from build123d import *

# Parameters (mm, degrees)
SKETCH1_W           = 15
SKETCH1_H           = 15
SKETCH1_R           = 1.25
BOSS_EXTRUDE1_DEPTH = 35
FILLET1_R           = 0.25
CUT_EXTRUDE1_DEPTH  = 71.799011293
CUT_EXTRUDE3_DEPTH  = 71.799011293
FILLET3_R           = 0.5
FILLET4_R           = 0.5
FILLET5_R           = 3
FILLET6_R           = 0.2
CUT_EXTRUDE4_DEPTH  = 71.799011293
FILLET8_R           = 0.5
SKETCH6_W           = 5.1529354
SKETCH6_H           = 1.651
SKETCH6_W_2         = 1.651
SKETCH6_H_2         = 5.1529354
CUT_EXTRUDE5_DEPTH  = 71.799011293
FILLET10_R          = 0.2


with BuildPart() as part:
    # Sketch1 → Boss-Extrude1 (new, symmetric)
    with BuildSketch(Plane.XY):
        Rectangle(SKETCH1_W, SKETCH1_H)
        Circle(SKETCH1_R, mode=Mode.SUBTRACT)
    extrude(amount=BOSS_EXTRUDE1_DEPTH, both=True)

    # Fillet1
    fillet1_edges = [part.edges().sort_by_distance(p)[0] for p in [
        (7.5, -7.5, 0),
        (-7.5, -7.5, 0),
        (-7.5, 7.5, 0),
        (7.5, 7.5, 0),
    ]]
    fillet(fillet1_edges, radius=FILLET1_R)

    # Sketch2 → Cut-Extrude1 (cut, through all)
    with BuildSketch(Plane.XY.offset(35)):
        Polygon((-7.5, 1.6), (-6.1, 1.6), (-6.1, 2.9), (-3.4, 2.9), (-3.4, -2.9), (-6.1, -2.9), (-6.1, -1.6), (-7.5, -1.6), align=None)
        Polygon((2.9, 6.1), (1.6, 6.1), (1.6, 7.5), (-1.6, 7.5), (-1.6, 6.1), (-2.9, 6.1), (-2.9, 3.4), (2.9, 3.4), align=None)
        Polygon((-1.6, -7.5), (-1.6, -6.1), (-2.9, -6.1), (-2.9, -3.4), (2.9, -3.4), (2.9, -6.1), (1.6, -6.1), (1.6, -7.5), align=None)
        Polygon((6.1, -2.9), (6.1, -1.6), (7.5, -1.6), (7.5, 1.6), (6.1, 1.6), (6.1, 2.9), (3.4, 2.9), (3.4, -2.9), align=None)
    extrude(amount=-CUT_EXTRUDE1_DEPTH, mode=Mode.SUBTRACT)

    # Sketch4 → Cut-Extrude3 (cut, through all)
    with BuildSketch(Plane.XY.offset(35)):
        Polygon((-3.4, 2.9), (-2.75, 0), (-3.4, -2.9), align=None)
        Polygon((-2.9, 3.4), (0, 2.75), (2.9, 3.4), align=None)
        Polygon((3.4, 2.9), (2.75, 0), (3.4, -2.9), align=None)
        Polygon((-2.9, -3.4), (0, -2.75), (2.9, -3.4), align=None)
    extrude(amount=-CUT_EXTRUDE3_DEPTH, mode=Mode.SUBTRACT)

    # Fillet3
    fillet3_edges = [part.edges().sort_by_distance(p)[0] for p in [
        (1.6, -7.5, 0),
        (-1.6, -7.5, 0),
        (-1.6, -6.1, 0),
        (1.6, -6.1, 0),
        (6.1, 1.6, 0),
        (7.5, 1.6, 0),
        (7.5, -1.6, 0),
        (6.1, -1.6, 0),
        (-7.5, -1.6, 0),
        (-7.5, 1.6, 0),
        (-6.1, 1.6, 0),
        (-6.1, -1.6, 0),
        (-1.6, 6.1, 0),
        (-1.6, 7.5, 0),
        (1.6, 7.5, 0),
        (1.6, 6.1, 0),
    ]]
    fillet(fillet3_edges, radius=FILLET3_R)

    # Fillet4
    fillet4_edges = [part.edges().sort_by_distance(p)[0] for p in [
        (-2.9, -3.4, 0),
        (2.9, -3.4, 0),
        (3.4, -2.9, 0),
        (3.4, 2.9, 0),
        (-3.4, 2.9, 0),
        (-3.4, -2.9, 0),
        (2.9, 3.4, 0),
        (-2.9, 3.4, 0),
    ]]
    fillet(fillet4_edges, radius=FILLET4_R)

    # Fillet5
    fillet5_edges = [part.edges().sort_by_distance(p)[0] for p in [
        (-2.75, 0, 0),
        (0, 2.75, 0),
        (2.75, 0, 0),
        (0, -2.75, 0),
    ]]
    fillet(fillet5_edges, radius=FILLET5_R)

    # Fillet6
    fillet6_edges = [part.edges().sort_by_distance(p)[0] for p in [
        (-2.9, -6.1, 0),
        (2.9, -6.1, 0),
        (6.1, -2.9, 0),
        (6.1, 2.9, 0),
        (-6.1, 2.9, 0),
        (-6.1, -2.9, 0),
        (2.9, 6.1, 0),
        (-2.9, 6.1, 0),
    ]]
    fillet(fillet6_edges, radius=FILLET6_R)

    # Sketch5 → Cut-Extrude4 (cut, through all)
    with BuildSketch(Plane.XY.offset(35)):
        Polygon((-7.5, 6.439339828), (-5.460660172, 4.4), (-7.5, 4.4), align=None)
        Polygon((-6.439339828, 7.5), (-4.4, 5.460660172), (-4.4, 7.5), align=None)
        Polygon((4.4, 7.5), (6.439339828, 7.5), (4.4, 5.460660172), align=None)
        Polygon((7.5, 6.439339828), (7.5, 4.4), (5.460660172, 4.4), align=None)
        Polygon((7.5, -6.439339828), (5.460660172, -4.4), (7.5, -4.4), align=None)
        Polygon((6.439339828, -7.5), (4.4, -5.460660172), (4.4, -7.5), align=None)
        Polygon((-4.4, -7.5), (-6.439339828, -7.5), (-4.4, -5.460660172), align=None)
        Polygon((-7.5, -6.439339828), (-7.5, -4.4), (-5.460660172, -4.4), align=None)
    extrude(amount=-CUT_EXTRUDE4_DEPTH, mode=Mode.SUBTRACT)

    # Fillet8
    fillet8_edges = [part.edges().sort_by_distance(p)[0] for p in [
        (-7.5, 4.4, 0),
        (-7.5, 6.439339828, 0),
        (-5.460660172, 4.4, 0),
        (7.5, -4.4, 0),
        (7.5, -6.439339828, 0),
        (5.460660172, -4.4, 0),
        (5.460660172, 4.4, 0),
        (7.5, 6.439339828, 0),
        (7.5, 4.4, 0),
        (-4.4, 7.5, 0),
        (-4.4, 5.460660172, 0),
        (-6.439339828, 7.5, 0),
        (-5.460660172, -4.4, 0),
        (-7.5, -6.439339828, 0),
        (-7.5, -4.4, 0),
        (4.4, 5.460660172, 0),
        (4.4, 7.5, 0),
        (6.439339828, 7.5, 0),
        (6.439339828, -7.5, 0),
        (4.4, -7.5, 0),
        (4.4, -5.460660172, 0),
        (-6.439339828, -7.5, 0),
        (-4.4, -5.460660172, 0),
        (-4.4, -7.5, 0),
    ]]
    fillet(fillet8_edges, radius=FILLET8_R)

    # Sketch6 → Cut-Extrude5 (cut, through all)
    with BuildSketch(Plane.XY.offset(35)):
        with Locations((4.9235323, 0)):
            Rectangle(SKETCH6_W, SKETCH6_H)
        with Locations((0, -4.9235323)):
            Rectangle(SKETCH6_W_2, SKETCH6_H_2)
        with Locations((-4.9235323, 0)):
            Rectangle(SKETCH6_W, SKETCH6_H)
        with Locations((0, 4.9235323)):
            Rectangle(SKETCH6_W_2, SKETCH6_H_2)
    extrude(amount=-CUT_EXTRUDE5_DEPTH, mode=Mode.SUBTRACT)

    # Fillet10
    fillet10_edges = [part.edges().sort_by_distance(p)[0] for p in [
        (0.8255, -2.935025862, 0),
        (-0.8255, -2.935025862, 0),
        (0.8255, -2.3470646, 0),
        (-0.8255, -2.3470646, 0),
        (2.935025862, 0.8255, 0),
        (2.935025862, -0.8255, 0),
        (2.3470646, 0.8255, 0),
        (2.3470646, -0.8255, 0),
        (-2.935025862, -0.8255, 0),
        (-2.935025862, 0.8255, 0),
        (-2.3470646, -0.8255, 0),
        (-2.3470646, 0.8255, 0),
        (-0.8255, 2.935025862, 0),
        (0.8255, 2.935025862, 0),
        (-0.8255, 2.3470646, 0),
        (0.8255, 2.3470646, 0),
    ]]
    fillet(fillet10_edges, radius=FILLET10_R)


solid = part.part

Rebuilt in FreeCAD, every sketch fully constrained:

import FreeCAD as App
import Part
import Sketcher
Q = App.Units.Quantity


def edges_at(feature, points):
    """Names of the edges that pass closest to the given points."""
    edges = feature.Shape.Edges
    near = lambda p: min(range(len(edges)), key=lambda i: edges[i].distToShape(Part.Vertex(*p))[0])
    return sorted({f"Edge{near(p) + 1}" for p in points})

doc = App.newDocument("Part")
body = doc.addObject("PartDesign::Body", "Body")

# Sketch on XY plane
sketch1 = body.newObject("Sketcher::SketchObject", "Sketch")
sketch1.AttachmentSupport = (doc.getObject("XY_Plane"), [""])
sketch1.MapMode = "FlatFace"
sketch1.addGeometry(Part.LineSegment(App.Vector(-7.5, 7.5, 0), App.Vector(-7.5, -7.5, 0)), False)
sketch1.addGeometry(Part.LineSegment(App.Vector(-7.5, -7.5, 0), App.Vector(7.5, -7.5, 0)), False)
sketch1.addGeometry(Part.LineSegment(App.Vector(7.5, -7.5, 0), App.Vector(7.5, 7.5, 0)), False)
sketch1.addGeometry(Part.LineSegment(App.Vector(7.5, 7.5, 0), App.Vector(-7.5, 7.5, 0)), False)
sketch1.addGeometry(Part.Circle(App.Vector(0, 0, 0), App.Vector(0, 0, 1), 1.2), False)
sketch1.addConstraint(Sketcher.Constraint("Coincident", 0, 2, 1, 1))
sketch1.addConstraint(Sketcher.Constraint("Coincident", 1, 2, 2, 1))
sketch1.addConstraint(Sketcher.Constraint("Coincident", 2, 2, 3, 1))
sketch1.addConstraint(Sketcher.Constraint("Coincident", 3, 2, 0, 1))
sketch1.addConstraint(Sketcher.Constraint("Vertical", 0))
sketch1.addConstraint(Sketcher.Constraint("Horizontal", 1))
sketch1.addConstraint(Sketcher.Constraint("Vertical", 2))
sketch1.addConstraint(Sketcher.Constraint("Horizontal", 3))
sketch1.addConstraint(Sketcher.Constraint("Coincident", 4, 3, -1, 1))
sketch1.addConstraint(Sketcher.Constraint("Symmetric", 0, 2, 2, 2, -1, 1))
sketch1.addConstraint(Sketcher.Constraint("Equal", 3, 0))
sketch1.addConstraint(Sketcher.Constraint("Diameter", 4, Q("2.5 mm")))
sketch1.addConstraint(Sketcher.Constraint("DistanceX", 1, 1, 1, 2, Q("15 mm")))
pad1 = body.newObject("PartDesign::Pad", "Pad")
pad1.Profile = sketch1
pad1.Length = 70
pad1.Midplane = True
doc.recompute()

fillet = body.newObject("PartDesign::Fillet", "Fillet")
fillet.Base = (pad1, edges_at(pad1, [
    (7.5, -7.5, 0),
    (-7.5, -7.5, 0),
    (-7.5, 7.5, 0),
    (7.5, 7.5, 0),
]))
fillet.Radius = 0.25

# Sketch on XY plane
sketch2 = body.newObject("Sketcher::SketchObject", "Sketch001")
sketch2.AttachmentSupport = (doc.getObject("XY_Plane"), [""])
sketch2.MapMode = "FlatFace"
sketch2.AttachmentOffset = App.Placement(App.Vector(0, 0, 35), App.Rotation())
sketch2.addGeometry(Part.LineSegment(App.Vector(-6.1, 1.6, 0), App.Vector(-7.5, 1.6, 0)), False)
sketch2.addGeometry(Part.LineSegment(App.Vector(-7.5, 1.6, 0), App.Vector(-7.5, -1.6, 0)), False)
sketch2.addGeometry(Part.LineSegment(App.Vector(-7.5, -1.6, 0), App.Vector(-6.1, -1.6, 0)), False)
sketch2.addGeometry(Part.LineSegment(App.Vector(-6.1, -1.6, 0), App.Vector(-6.1, -2.9, 0)), False)
sketch2.addGeometry(Part.LineSegment(App.Vector(-6.1, -2.9, 0), App.Vector(-3.4, -2.9, 0)), False)
sketch2.addGeometry(Part.LineSegment(App.Vector(-3.4, -2.9, 0), App.Vector(-3.4, 2.9, 0)), False)
sketch2.addGeometry(Part.LineSegment(App.Vector(-3.4, 2.9, 0), App.Vector(-6.1, 2.9, 0)), False)
sketch2.addGeometry(Part.LineSegment(App.Vector(-6.1, 2.9, 0), App.Vector(-6.1, 1.6, 0)), False)
sketch2.addGeometry(Part.LineSegment(App.Vector(2.9, 6.1, 0), App.Vector(1.6, 6.1, 0)), False)
sketch2.addGeometry(Part.LineSegment(App.Vector(1.6, 6.1, 0), App.Vector(1.6, 7.5, 0)), False)
sketch2.addGeometry(Part.LineSegment(App.Vector(1.6, 7.5, 0), App.Vector(-1.6, 7.5, 0)), False)
sketch2.addGeometry(Part.LineSegment(App.Vector(-1.6, 7.5, 0), App.Vector(-1.6, 6.1, 0)), False)
sketch2.addGeometry(Part.LineSegment(App.Vector(-1.6, 6.1, 0), App.Vector(-2.9, 6.1, 0)), False)
sketch2.addGeometry(Part.LineSegment(App.Vector(-2.9, 6.1, 0), App.Vector(-2.9, 3.4, 0)), False)
sketch2.addGeometry(Part.LineSegment(App.Vector(-2.9, 3.4, 0), App.Vector(2.9, 3.4, 0)), False)
sketch2.addGeometry(Part.LineSegment(App.Vector(2.9, 3.4, 0), App.Vector(2.9, 6.1, 0)), False)
sketch2.addGeometry(Part.LineSegment(App.Vector(-1.6, -6.1, 0), App.Vector(-1.6, -7.5, 0)), False)
sketch2.addGeometry(Part.LineSegment(App.Vector(-1.6, -7.5, 0), App.Vector(1.6, -7.5, 0)), False)
sketch2.addGeometry(Part.LineSegment(App.Vector(1.6, -7.5, 0), App.Vector(1.6, -6.1, 0)), False)
sketch2.addGeometry(Part.LineSegment(App.Vector(1.6, -6.1, 0), App.Vector(2.9, -6.1, 0)), False)
sketch2.addGeometry(Part.LineSegment(App.Vector(2.9, -6.1, 0), App.Vector(2.9, -3.4, 0)), False)
sketch2.addGeometry(Part.LineSegment(App.Vector(2.9, -3.4, 0), App.Vector(-2.9, -3.4, 0)), False)
sketch2.addGeometry(Part.LineSegment(App.Vector(-2.9, -3.4, 0), App.Vector(-2.9, -6.1, 0)), False)
sketch2.addGeometry(Part.LineSegment(App.Vector(-2.9, -6.1, 0), App.Vector(-1.6, -6.1, 0)), False)
sketch2.addGeometry(Part.LineSegment(App.Vector(6.1, -2.9, 0), App.Vector(6.1, -1.6, 0)), False)
sketch2.addGeometry(Part.LineSegment(App.Vector(6.1, -1.6, 0), App.Vector(7.5, -1.6, 0)), False)
sketch2.addGeometry(Part.LineSegment(App.Vector(7.5, -1.6, 0), App.Vector(7.5, 1.6, 0)), False)
sketch2.addGeometry(Part.LineSegment(App.Vector(7.5, 1.6, 0), App.Vector(6.1, 1.6, 0)), False)
sketch2.addGeometry(Part.LineSegment(App.Vector(6.1, 1.6, 0), App.Vector(6.1, 2.9, 0)), False)
sketch2.addGeometry(Part.LineSegment(App.Vector(6.1, 2.9, 0), App.Vector(3.4, 2.9, 0)), False)
sketch2.addGeometry(Part.LineSegment(App.Vector(3.4, 2.9, 0), App.Vector(3.4, -2.9, 0)), False)
sketch2.addGeometry(Part.LineSegment(App.Vector(3.4, -2.9, 0), App.Vector(6.1, -2.9, 0)), False)
sketch2.addConstraint(Sketcher.Constraint("Coincident", 0, 2, 1, 1))
sketch2.addConstraint(Sketcher.Constraint("Coincident", 1, 2, 2, 1))
sketch2.addConstraint(Sketcher.Constraint("Coincident", 2, 2, 3, 1))
sketch2.addConstraint(Sketcher.Constraint("Coincident", 3, 2, 4, 1))
sketch2.addConstraint(Sketcher.Constraint("Coincident", 4, 2, 5, 1))
sketch2.addConstraint(Sketcher.Constraint("Coincident", 5, 2, 6, 1))
sketch2.addConstraint(Sketcher.Constraint("Coincident", 6, 2, 7, 1))
sketch2.addConstraint(Sketcher.Constraint("Coincident", 7, 2, 0, 1))
sketch2.addConstraint(Sketcher.Constraint("Coincident", 8, 2, 9, 1))
sketch2.addConstraint(Sketcher.Constraint("Coincident", 9, 2, 10, 1))
sketch2.addConstraint(Sketcher.Constraint("Coincident", 10, 2, 11, 1))
sketch2.addConstraint(Sketcher.Constraint("Coincident", 11, 2, 12, 1))
sketch2.addConstraint(Sketcher.Constraint("Coincident", 12, 2, 13, 1))
sketch2.addConstraint(Sketcher.Constraint("Coincident", 13, 2, 14, 1))
sketch2.addConstraint(Sketcher.Constraint("Coincident", 14, 2, 15, 1))
sketch2.addConstraint(Sketcher.Constraint("Coincident", 15, 2, 8, 1))
sketch2.addConstraint(Sketcher.Constraint("Coincident", 16, 2, 17, 1))
sketch2.addConstraint(Sketcher.Constraint("Coincident", 17, 2, 18, 1))
sketch2.addConstraint(Sketcher.Constraint("Coincident", 18, 2, 19, 1))
sketch2.addConstraint(Sketcher.Constraint("Coincident", 19, 2, 20, 1))
sketch2.addConstraint(Sketcher.Constraint("Coincident", 20, 2, 21, 1))
sketch2.addConstraint(Sketcher.Constraint("Coincident", 21, 2, 22, 1))
sketch2.addConstraint(Sketcher.Constraint("Coincident", 22, 2, 23, 1))
sketch2.addConstraint(Sketcher.Constraint("Coincident", 23, 2, 16, 1))
sketch2.addConstraint(Sketcher.Constraint("Coincident", 24, 2, 25, 1))
sketch2.addConstraint(Sketcher.Constraint("Coincident", 25, 2, 26, 1))
sketch2.addConstraint(Sketcher.Constraint("Coincident", 26, 2, 27, 1))
sketch2.addConstraint(Sketcher.Constraint("Coincident", 27, 2, 28, 1))
sketch2.addConstraint(Sketcher.Constraint("Coincident", 28, 2, 29, 1))
sketch2.addConstraint(Sketcher.Constraint("Coincident", 29, 2, 30, 1))
sketch2.addConstraint(Sketcher.Constraint("Coincident", 30, 2, 31, 1))
sketch2.addConstraint(Sketcher.Constraint("Coincident", 31, 2, 24, 1))
sketch2.addConstraint(Sketcher.Constraint("Horizontal", 0))
sketch2.addConstraint(Sketcher.Constraint("Vertical", 1))
sketch2.addConstraint(Sketcher.Constraint("Horizontal", 2))
sketch2.addConstraint(Sketcher.Constraint("Vertical", 3))
sketch2.addConstraint(Sketcher.Constraint("Horizontal", 4))
sketch2.addConstraint(Sketcher.Constraint("Vertical", 5))
sketch2.addConstraint(Sketcher.Constraint("Horizontal", 6))
sketch2.addConstraint(Sketcher.Constraint("Vertical", 7))
sketch2.addConstraint(Sketcher.Constraint("Horizontal", 8))
sketch2.addConstraint(Sketcher.Constraint("Vertical", 9))
sketch2.addConstraint(Sketcher.Constraint("Horizontal", 10))
sketch2.addConstraint(Sketcher.Constraint("Vertical", 11))
sketch2.addConstraint(Sketcher.Constraint("Horizontal", 12))
sketch2.addConstraint(Sketcher.Constraint("Vertical", 13))
sketch2.addConstraint(Sketcher.Constraint("Horizontal", 14))
sketch2.addConstraint(Sketcher.Constraint("Vertical", 15))
sketch2.addConstraint(Sketcher.Constraint("Vertical", 16))
sketch2.addConstraint(Sketcher.Constraint("Horizontal", 17))
sketch2.addConstraint(Sketcher.Constraint("Vertical", 18))
sketch2.addConstraint(Sketcher.Constraint("Horizontal", 19))
sketch2.addConstraint(Sketcher.Constraint("Vertical", 20))
sketch2.addConstraint(Sketcher.Constraint("Horizontal", 21))
sketch2.addConstraint(Sketcher.Constraint("Vertical", 22))
sketch2.addConstraint(Sketcher.Constraint("Horizontal", 23))
sketch2.addConstraint(Sketcher.Constraint("Vertical", 24))
sketch2.addConstraint(Sketcher.Constraint("Horizontal", 25))
sketch2.addConstraint(Sketcher.Constraint("Vertical", 26))
sketch2.addConstraint(Sketcher.Constraint("Horizontal", 27))
sketch2.addConstraint(Sketcher.Constraint("Vertical", 28))
sketch2.addConstraint(Sketcher.Constraint("Horizontal", 29))
sketch2.addConstraint(Sketcher.Constraint("Vertical", 30))
sketch2.addConstraint(Sketcher.Constraint("Horizontal", 31))
sketch2.addConstraint(Sketcher.Constraint("Symmetric", 9, 2, 16, 2, -1, 1))
sketch2.addConstraint(Sketcher.Constraint("Symmetric", 11, 2, 18, 2, -1, 1))
sketch2.addConstraint(Sketcher.Constraint("Symmetric", 13, 2, 20, 2, -1, 1))
sketch2.addConstraint(Sketcher.Constraint("Symmetric", 15, 2, 22, 2, -1, 1))
sketch2.addConstraint(Sketcher.Constraint("Symmetric", 7, 2, 24, 2, -1, 1))
sketch2.addConstraint(Sketcher.Constraint("Symmetric", 1, 2, 26, 2, -1, 1))
sketch2.addConstraint(Sketcher.Constraint("Symmetric", 3, 2, 28, 2, -1, 1))
sketch2.addConstraint(Sketcher.Constraint("Symmetric", 5, 2, 30, 2, -1, 1))
sketch2.addConstraint(Sketcher.Constraint("Symmetric", 8, 2, 11, 2, -2))
sketch2.addConstraint(Sketcher.Constraint("Symmetric", 2, 2, 24, 2, -2))
sketch2.addConstraint(Sketcher.Constraint("Horizontal", 6, 2, 28, 2))
sketch2.addConstraint(Sketcher.Constraint("Vertical", 15, 2, 19, 2))
sketch2.addConstraint(Sketcher.Constraint("Equal", 17, 1))
sketch2.addConstraint(Sketcher.Constraint("Equal", 23, 3))
sketch2.addConstraint(Sketcher.Constraint("Equal", 27, 9))
sketch2.addConstraint(Sketcher.Constraint("Equal", 31, 13))
sketch2.addConstraint(Sketcher.Constraint("DistanceX", 0, 2, 0, 1, Q("1.4 mm")))
sketch2.addConstraint(Sketcher.Constraint("DistanceX", 4, 1, 4, 2, Q("2.7 mm")))
sketch2.addConstraint(Sketcher.Constraint("DistanceX", 8, 2, 8, 1, Q("1.3 mm")))
sketch2.addConstraint(Sketcher.Constraint("DistanceX", 10, 2, 10, 1, Q("3.2 mm")))
sketch2.addConstraint(Sketcher.Constraint("DistanceX", 5, 2, 8, 2, Q("5 mm")))
sketch2.addConstraint(Sketcher.Constraint("DistanceY", 4, 2, 8, 2, Q("9 mm")))
pocket1 = body.newObject("PartDesign::Pocket", "Pocket")
pocket1.Profile = sketch2
pocket1.Type = "ThroughAll"

# Sketch on XY plane
sketch3 = body.newObject("Sketcher::SketchObject", "Sketch002")
sketch3.AttachmentSupport = (doc.getObject("XY_Plane"), [""])
sketch3.MapMode = "FlatFace"
sketch3.AttachmentOffset = App.Placement(App.Vector(0, 0, 35), App.Rotation())
sketch3.addGeometry(Part.LineSegment(App.Vector(-2.8, 0, 0), App.Vector(-3.4, 2.9, 0)), False)
sketch3.addGeometry(Part.LineSegment(App.Vector(-3.4, 2.9, 0), App.Vector(-3.4, -2.9, 0)), False)
sketch3.addGeometry(Part.LineSegment(App.Vector(-3.4, -2.9, 0), App.Vector(-2.8, 0, 0)), False)
sketch3.addGeometry(Part.LineSegment(App.Vector(-2.9, 3.4, 0), App.Vector(0, 2.8, 0)), False)
sketch3.addGeometry(Part.LineSegment(App.Vector(0, 2.8, 0), App.Vector(2.9, 3.4, 0)), False)
sketch3.addGeometry(Part.LineSegment(App.Vector(2.9, 3.4, 0), App.Vector(-2.9, 3.4, 0)), False)
sketch3.addGeometry(Part.LineSegment(App.Vector(3.4, 2.9, 0), App.Vector(2.8, 0, 0)), False)
sketch3.addGeometry(Part.LineSegment(App.Vector(2.8, 0, 0), App.Vector(3.4, -2.9, 0)), False)
sketch3.addGeometry(Part.LineSegment(App.Vector(3.4, -2.9, 0), App.Vector(3.4, 2.9, 0)), False)
sketch3.addGeometry(Part.LineSegment(App.Vector(0, -2.8, 0), App.Vector(-2.9, -3.4, 0)), False)
sketch3.addGeometry(Part.LineSegment(App.Vector(-2.9, -3.4, 0), App.Vector(2.9, -3.4, 0)), False)
sketch3.addGeometry(Part.LineSegment(App.Vector(2.9, -3.4, 0), App.Vector(0, -2.8, 0)), False)
sketch3.addConstraint(Sketcher.Constraint("Coincident", 0, 2, 1, 1))
sketch3.addConstraint(Sketcher.Constraint("Coincident", 1, 2, 2, 1))
sketch3.addConstraint(Sketcher.Constraint("Coincident", 2, 2, 0, 1))
sketch3.addConstraint(Sketcher.Constraint("Coincident", 3, 2, 4, 1))
sketch3.addConstraint(Sketcher.Constraint("Coincident", 4, 2, 5, 1))
sketch3.addConstraint(Sketcher.Constraint("Coincident", 5, 2, 3, 1))
sketch3.addConstraint(Sketcher.Constraint("Coincident", 6, 2, 7, 1))
sketch3.addConstraint(Sketcher.Constraint("Coincident", 7, 2, 8, 1))
sketch3.addConstraint(Sketcher.Constraint("Coincident", 8, 2, 6, 1))
sketch3.addConstraint(Sketcher.Constraint("Coincident", 9, 2, 10, 1))
sketch3.addConstraint(Sketcher.Constraint("Coincident", 10, 2, 11, 1))
sketch3.addConstraint(Sketcher.Constraint("Coincident", 11, 2, 9, 1))
sketch3.addConstraint(Sketcher.Constraint("Vertical", 1))
sketch3.addConstraint(Sketcher.Constraint("Horizontal", 5))
sketch3.addConstraint(Sketcher.Constraint("Vertical", 8))
sketch3.addConstraint(Sketcher.Constraint("Horizontal", 10))
sketch3.addConstraint(Sketcher.Constraint("Symmetric", 2, 2, 6, 2, -1, 1))
sketch3.addConstraint(Sketcher.Constraint("Symmetric", 0, 2, 7, 2, -1, 1))
sketch3.addConstraint(Sketcher.Constraint("Symmetric", 4, 2, 9, 2, -1, 1))
sketch3.addConstraint(Sketcher.Constraint("Symmetric", 3, 2, 11, 2, -1, 1))
sketch3.addConstraint(Sketcher.Constraint("PointOnObject", 2, 2, -1))
sketch3.addConstraint(Sketcher.Constraint("PointOnObject", 3, 2, -2))
sketch3.addConstraint(Sketcher.Constraint("Perpendicular", 2, 3))
sketch3.addConstraint(Sketcher.Constraint("Perpendicular", 0, 4))
sketch3.addConstraint(Sketcher.Constraint("Perpendicular", 3, 6))
sketch3.addConstraint(Sketcher.Constraint("Perpendicular", 6, 11))
sketch3.addConstraint(Sketcher.Constraint("Horizontal", 1, 2, 7, 2))
sketch3.addConstraint(Sketcher.Constraint("Equal", 10, 1))
sketch3.addConstraint(Sketcher.Constraint("DistanceX", 5, 2, 5, 1, Q("5.8 mm")))
sketch3.addConstraint(Sketcher.Constraint("DistanceX", 0, 2, -1, 1, Q("3.4 mm")))
sketch3.addConstraint(Sketcher.Constraint("DistanceY", -1, 1, 4, 2, Q("3.4 mm")))
sketch3.addConstraint(Sketcher.Constraint("DistanceX", 2, 2, 6, 2, Q("5.5 mm")))
pocket2 = body.newObject("PartDesign::Pocket", "Pocket001")
pocket2.Profile = sketch3
pocket2.Type = "ThroughAll"
doc.recompute()

fillet2 = body.newObject("PartDesign::Fillet", "Fillet001")
fillet2.Base = (pocket2, edges_at(pocket2, [
    (1.6, -7.5, 0),
    (-1.6, -7.5, 0),
    (-1.6, -6.1, 0),
    (1.6, -6.1, 0),
    (6.1, 1.6, 0),
    (7.5, 1.6, 0),
    (7.5, -1.6, 0),
    (6.1, -1.6, 0),
    (-7.5, -1.6, 0),
    (-7.5, 1.6, 0),
    (-6.1, 1.6, 0),
    (-6.1, -1.6, 0),
    (-1.6, 6.1, 0),
    (-1.6, 7.5, 0),
    (1.6, 7.5, 0),
    (1.6, 6.1, 0),
]))
fillet2.Radius = 0.5
doc.recompute()

fillet3 = body.newObject("PartDesign::Fillet", "Fillet002")
fillet3.Base = (fillet2, edges_at(fillet2, [
    (-2.9, -3.4, 0),
    (2.9, -3.4, 0),
    (3.4, -2.9, 0),
    (3.4, 2.9, 0),
    (-3.4, 2.9, 0),
    (-3.4, -2.9, 0),
    (2.9, 3.4, 0),
    (-2.9, 3.4, 0),
]))
fillet3.Radius = 0.5
doc.recompute()

fillet4 = body.newObject("PartDesign::Fillet", "Fillet003")
fillet4.Base = (fillet3, edges_at(fillet3, [
    (-2.75, 0, 0),
    (0, 2.75, 0),
    (2.75, 0, 0),
    (0, -2.75, 0),
]))
fillet4.Radius = 3
doc.recompute()

fillet5 = body.newObject("PartDesign::Fillet", "Fillet004")
fillet5.Base = (fillet4, edges_at(fillet4, [
    (-2.9, -6.1, 0),
    (2.9, -6.1, 0),
    (6.1, -2.9, 0),
    (6.1, 2.9, 0),
    (-6.1, 2.9, 0),
    (-6.1, -2.9, 0),
    (2.9, 6.1, 0),
    (-2.9, 6.1, 0),
]))
fillet5.Radius = 0.2

# Sketch on XY plane
sketch4 = body.newObject("Sketcher::SketchObject", "Sketch003")
sketch4.AttachmentSupport = (doc.getObject("XY_Plane"), [""])
sketch4.MapMode = "FlatFace"
sketch4.AttachmentOffset = App.Placement(App.Vector(0, 0, 35), App.Rotation())
sketch4.addGeometry(Part.LineSegment(App.Vector(-5.5, 4.4, 0), App.Vector(-7.5, 6.4, 0)), False)
sketch4.addGeometry(Part.LineSegment(App.Vector(-7.5, 6.4, 0), App.Vector(-7.5, 4.4, 0)), False)
sketch4.addGeometry(Part.LineSegment(App.Vector(-7.5, 4.4, 0), App.Vector(-5.5, 4.4, 0)), False)
sketch4.addGeometry(Part.LineSegment(App.Vector(-6.4, 7.5, 0), App.Vector(-4.4, 5.5, 0)), False)
sketch4.addGeometry(Part.LineSegment(App.Vector(-4.4, 5.5, 0), App.Vector(-4.4, 7.5, 0)), False)
sketch4.addGeometry(Part.LineSegment(App.Vector(-4.4, 7.5, 0), App.Vector(-6.4, 7.5, 0)), False)
sketch4.addGeometry(Part.LineSegment(App.Vector(6.4, 7.5, 0), App.Vector(4.4, 7.5, 0)), False)
sketch4.addGeometry(Part.LineSegment(App.Vector(4.4, 7.5, 0), App.Vector(4.4, 5.5, 0)), False)
sketch4.addGeometry(Part.LineSegment(App.Vector(4.4, 5.5, 0), App.Vector(6.4, 7.5, 0)), False)
sketch4.addGeometry(Part.LineSegment(App.Vector(7.5, 4.4, 0), App.Vector(7.5, 6.4, 0)), False)
sketch4.addGeometry(Part.LineSegment(App.Vector(7.5, 6.4, 0), App.Vector(5.5, 4.4, 0)), False)
sketch4.addGeometry(Part.LineSegment(App.Vector(5.5, 4.4, 0), App.Vector(7.5, 4.4, 0)), False)
sketch4.addGeometry(Part.LineSegment(App.Vector(5.5, -4.4, 0), App.Vector(7.5, -6.4, 0)), False)
sketch4.addGeometry(Part.LineSegment(App.Vector(7.5, -6.4, 0), App.Vector(7.5, -4.4, 0)), False)
sketch4.addGeometry(Part.LineSegment(App.Vector(7.5, -4.4, 0), App.Vector(5.5, -4.4, 0)), False)
sketch4.addGeometry(Part.LineSegment(App.Vector(6.4, -7.5, 0), App.Vector(4.4, -5.5, 0)), False)
sketch4.addGeometry(Part.LineSegment(App.Vector(4.4, -5.5, 0), App.Vector(4.4, -7.5, 0)), False)
sketch4.addGeometry(Part.LineSegment(App.Vector(4.4, -7.5, 0), App.Vector(6.4, -7.5, 0)), False)
sketch4.addGeometry(Part.LineSegment(App.Vector(-6.4, -7.5, 0), App.Vector(-4.4, -7.5, 0)), False)
sketch4.addGeometry(Part.LineSegment(App.Vector(-4.4, -7.5, 0), App.Vector(-4.4, -5.5, 0)), False)
sketch4.addGeometry(Part.LineSegment(App.Vector(-4.4, -5.5, 0), App.Vector(-6.4, -7.5, 0)), False)
sketch4.addGeometry(Part.LineSegment(App.Vector(-7.5, -4.4, 0), App.Vector(-7.5, -6.4, 0)), False)
sketch4.addGeometry(Part.LineSegment(App.Vector(-7.5, -6.4, 0), App.Vector(-5.5, -4.4, 0)), False)
sketch4.addGeometry(Part.LineSegment(App.Vector(-5.5, -4.4, 0), App.Vector(-7.5, -4.4, 0)), False)
sketch4.addConstraint(Sketcher.Constraint("Coincident", 0, 2, 1, 1))
sketch4.addConstraint(Sketcher.Constraint("Coincident", 1, 2, 2, 1))
sketch4.addConstraint(Sketcher.Constraint("Coincident", 2, 2, 0, 1))
sketch4.addConstraint(Sketcher.Constraint("Coincident", 3, 2, 4, 1))
sketch4.addConstraint(Sketcher.Constraint("Coincident", 4, 2, 5, 1))
sketch4.addConstraint(Sketcher.Constraint("Coincident", 5, 2, 3, 1))
sketch4.addConstraint(Sketcher.Constraint("Coincident", 6, 2, 7, 1))
sketch4.addConstraint(Sketcher.Constraint("Coincident", 7, 2, 8, 1))
sketch4.addConstraint(Sketcher.Constraint("Coincident", 8, 2, 6, 1))
sketch4.addConstraint(Sketcher.Constraint("Coincident", 9, 2, 10, 1))
sketch4.addConstraint(Sketcher.Constraint("Coincident", 10, 2, 11, 1))
sketch4.addConstraint(Sketcher.Constraint("Coincident", 11, 2, 9, 1))
sketch4.addConstraint(Sketcher.Constraint("Coincident", 12, 2, 13, 1))
sketch4.addConstraint(Sketcher.Constraint("Coincident", 13, 2, 14, 1))
sketch4.addConstraint(Sketcher.Constraint("Coincident", 14, 2, 12, 1))
sketch4.addConstraint(Sketcher.Constraint("Coincident", 15, 2, 16, 1))
sketch4.addConstraint(Sketcher.Constraint("Coincident", 16, 2, 17, 1))
sketch4.addConstraint(Sketcher.Constraint("Coincident", 17, 2, 15, 1))
sketch4.addConstraint(Sketcher.Constraint("Coincident", 18, 2, 19, 1))
sketch4.addConstraint(Sketcher.Constraint("Coincident", 19, 2, 20, 1))
sketch4.addConstraint(Sketcher.Constraint("Coincident", 20, 2, 18, 1))
sketch4.addConstraint(Sketcher.Constraint("Coincident", 21, 2, 22, 1))
sketch4.addConstraint(Sketcher.Constraint("Coincident", 22, 2, 23, 1))
sketch4.addConstraint(Sketcher.Constraint("Coincident", 23, 2, 21, 1))
sketch4.addConstraint(Sketcher.Constraint("Vertical", 1))
sketch4.addConstraint(Sketcher.Constraint("Horizontal", 2))
sketch4.addConstraint(Sketcher.Constraint("Vertical", 4))
sketch4.addConstraint(Sketcher.Constraint("Horizontal", 5))
sketch4.addConstraint(Sketcher.Constraint("Horizontal", 6))
sketch4.addConstraint(Sketcher.Constraint("Vertical", 7))
sketch4.addConstraint(Sketcher.Constraint("Vertical", 9))
sketch4.addConstraint(Sketcher.Constraint("Horizontal", 11))
sketch4.addConstraint(Sketcher.Constraint("Vertical", 13))
sketch4.addConstraint(Sketcher.Constraint("Horizontal", 14))
sketch4.addConstraint(Sketcher.Constraint("Vertical", 16))
sketch4.addConstraint(Sketcher.Constraint("Horizontal", 17))
sketch4.addConstraint(Sketcher.Constraint("Horizontal", 18))
sketch4.addConstraint(Sketcher.Constraint("Vertical", 19))
sketch4.addConstraint(Sketcher.Constraint("Vertical", 21))
sketch4.addConstraint(Sketcher.Constraint("Horizontal", 23))
sketch4.addConstraint(Sketcher.Constraint("Symmetric", 0, 2, 12, 2, -1, 1))
sketch4.addConstraint(Sketcher.Constraint("Symmetric", 2, 2, 14, 2, -1, 1))
sketch4.addConstraint(Sketcher.Constraint("Symmetric", 3, 2, 15, 2, -1, 1))
sketch4.addConstraint(Sketcher.Constraint("Symmetric", 5, 2, 17, 2, -1, 1))
sketch4.addConstraint(Sketcher.Constraint("Symmetric", 6, 2, 18, 2, -1, 1))
sketch4.addConstraint(Sketcher.Constraint("Symmetric", 9, 2, 21, 2, -1, 1))
sketch4.addConstraint(Sketcher.Constraint("Symmetric", 10, 2, 22, 2, -1, 1))
sketch4.addConstraint(Sketcher.Constraint("Symmetric", 4, 2, 6, 2, -2))
sketch4.addConstraint(Sketcher.Constraint("Symmetric", 0, 2, 9, 2, -2))
sketch4.addConstraint(Sketcher.Constraint("Symmetric", 2, 2, 10, 2, -2))
sketch4.addConstraint(Sketcher.Constraint("Parallel", 0, 3))
sketch4.addConstraint(Sketcher.Constraint("Perpendicular", 3, 8))
sketch4.addConstraint(Sketcher.Constraint("Parallel", 8, 10))
sketch4.addConstraint(Sketcher.Constraint("Perpendicular", 15, 20))
sketch4.addConstraint(Sketcher.Constraint("Horizontal", 3, 2, 7, 2))
sketch4.addConstraint(Sketcher.Constraint("Horizontal", 15, 2, 19, 2))
sketch4.addConstraint(Sketcher.Constraint("Equal", 2, 5))
sketch4.addConstraint(Sketcher.Constraint("DistanceX", 0, 2, -1, 1, Q("7.5 mm")))
sketch4.addConstraint(Sketcher.Constraint("DistanceY", -1, 1, 1, 2, Q("4.4 mm")))
sketch4.addConstraint(Sketcher.Constraint("DistanceX", 3, 2, -1, 1, Q("4.4 mm")))
sketch4.addConstraint(Sketcher.Constraint("DistanceY", -1, 1, 4, 2, Q("7.5 mm")))
sketch4.addConstraint(Sketcher.Constraint("DistanceX", 2, 1, 2, 2, Q("2.03934 mm")))
pocket3 = body.newObject("PartDesign::Pocket", "Pocket002")
pocket3.Profile = sketch4
pocket3.Type = "ThroughAll"
doc.recompute()

fillet6 = body.newObject("PartDesign::Fillet", "Fillet005")
fillet6.Base = (pocket3, edges_at(pocket3, [
    (-7.5, 4.4, 0),
    (-7.5, 6.439, 0),
    (-5.461, 4.4, 0),
    (7.5, -4.4, 0),
    (7.5, -6.439, 0),
    (5.461, -4.4, 0),
    (5.461, 4.4, 0),
    (7.5, 6.439, 0),
    (7.5, 4.4, 0),
    (-4.4, 7.5, 0),
    (-4.4, 5.461, 0),
    (-6.439, 7.5, 0),
    (-5.461, -4.4, 0),
    (-7.5, -6.439, 0),
    (-7.5, -4.4, 0),
    (4.4, 5.461, 0),
    (4.4, 7.5, 0),
    (6.439, 7.5, 0),
    (6.439, -7.5, 0),
    (4.4, -7.5, 0),
    (4.4, -5.461, 0),
    (-6.439, -7.5, 0),
    (-4.4, -5.461, 0),
    (-4.4, -7.5, 0),
]))
fillet6.Radius = 0.5

# Sketch on XY plane
sketch5 = body.newObject("Sketcher::SketchObject", "Sketch004")
sketch5.AttachmentSupport = (doc.getObject("XY_Plane"), [""])
sketch5.MapMode = "FlatFace"
sketch5.AttachmentOffset = App.Placement(App.Vector(0, 0, 35), App.Rotation())
sketch5.addGeometry(Part.LineSegment(App.Vector(2.3, 0.8, 0), App.Vector(2.3, -0.8, 0)), False)
sketch5.addGeometry(Part.LineSegment(App.Vector(2.3, -0.8, 0), App.Vector(7.5, -0.8, 0)), False)
sketch5.addGeometry(Part.LineSegment(App.Vector(7.5, -0.8, 0), App.Vector(7.5, 0.8, 0)), False)
sketch5.addGeometry(Part.LineSegment(App.Vector(7.5, 0.8, 0), App.Vector(2.3, 0.8, 0)), False)
sketch5.addGeometry(Part.LineSegment(App.Vector(-0.8, -2.3, 0), App.Vector(-0.8, -7.5, 0)), False)
sketch5.addGeometry(Part.LineSegment(App.Vector(-0.8, -7.5, 0), App.Vector(0.8, -7.5, 0)), False)
sketch5.addGeometry(Part.LineSegment(App.Vector(0.8, -7.5, 0), App.Vector(0.8, -2.3, 0)), False)
sketch5.addGeometry(Part.LineSegment(App.Vector(0.8, -2.3, 0), App.Vector(-0.8, -2.3, 0)), False)
sketch5.addGeometry(Part.LineSegment(App.Vector(-7.5, 0.8, 0), App.Vector(-7.5, -0.8, 0)), False)
sketch5.addGeometry(Part.LineSegment(App.Vector(-7.5, -0.8, 0), App.Vector(-2.3, -0.8, 0)), False)
sketch5.addGeometry(Part.LineSegment(App.Vector(-2.3, -0.8, 0), App.Vector(-2.3, 0.8, 0)), False)
sketch5.addGeometry(Part.LineSegment(App.Vector(-2.3, 0.8, 0), App.Vector(-7.5, 0.8, 0)), False)
sketch5.addGeometry(Part.LineSegment(App.Vector(-0.8, 7.5, 0), App.Vector(-0.8, 2.3, 0)), False)
sketch5.addGeometry(Part.LineSegment(App.Vector(-0.8, 2.3, 0), App.Vector(0.8, 2.3, 0)), False)
sketch5.addGeometry(Part.LineSegment(App.Vector(0.8, 2.3, 0), App.Vector(0.8, 7.5, 0)), False)
sketch5.addGeometry(Part.LineSegment(App.Vector(0.8, 7.5, 0), App.Vector(-0.8, 7.5, 0)), False)
sketch5.addConstraint(Sketcher.Constraint("Coincident", 0, 2, 1, 1))
sketch5.addConstraint(Sketcher.Constraint("Coincident", 1, 2, 2, 1))
sketch5.addConstraint(Sketcher.Constraint("Coincident", 2, 2, 3, 1))
sketch5.addConstraint(Sketcher.Constraint("Coincident", 3, 2, 0, 1))
sketch5.addConstraint(Sketcher.Constraint("Coincident", 4, 2, 5, 1))
sketch5.addConstraint(Sketcher.Constraint("Coincident", 5, 2, 6, 1))
sketch5.addConstraint(Sketcher.Constraint("Coincident", 6, 2, 7, 1))
sketch5.addConstraint(Sketcher.Constraint("Coincident", 7, 2, 4, 1))
sketch5.addConstraint(Sketcher.Constraint("Coincident", 8, 2, 9, 1))
sketch5.addConstraint(Sketcher.Constraint("Coincident", 9, 2, 10, 1))
sketch5.addConstraint(Sketcher.Constraint("Coincident", 10, 2, 11, 1))
sketch5.addConstraint(Sketcher.Constraint("Coincident", 11, 2, 8, 1))
sketch5.addConstraint(Sketcher.Constraint("Coincident", 12, 2, 13, 1))
sketch5.addConstraint(Sketcher.Constraint("Coincident", 13, 2, 14, 1))
sketch5.addConstraint(Sketcher.Constraint("Coincident", 14, 2, 15, 1))
sketch5.addConstraint(Sketcher.Constraint("Coincident", 15, 2, 12, 1))
sketch5.addConstraint(Sketcher.Constraint("Vertical", 0))
sketch5.addConstraint(Sketcher.Constraint("Horizontal", 1))
sketch5.addConstraint(Sketcher.Constraint("Vertical", 2))
sketch5.addConstraint(Sketcher.Constraint("Horizontal", 3))
sketch5.addConstraint(Sketcher.Constraint("Vertical", 4))
sketch5.addConstraint(Sketcher.Constraint("Horizontal", 5))
sketch5.addConstraint(Sketcher.Constraint("Vertical", 6))
sketch5.addConstraint(Sketcher.Constraint("Horizontal", 7))
sketch5.addConstraint(Sketcher.Constraint("Vertical", 8))
sketch5.addConstraint(Sketcher.Constraint("Horizontal", 9))
sketch5.addConstraint(Sketcher.Constraint("Vertical", 10))
sketch5.addConstraint(Sketcher.Constraint("Horizontal", 11))
sketch5.addConstraint(Sketcher.Constraint("Vertical", 12))
sketch5.addConstraint(Sketcher.Constraint("Horizontal", 13))
sketch5.addConstraint(Sketcher.Constraint("Vertical", 14))
sketch5.addConstraint(Sketcher.Constraint("Horizontal", 15))
sketch5.addConstraint(Sketcher.Constraint("Symmetric", 2, 2, 8, 2, -1, 1))
sketch5.addConstraint(Sketcher.Constraint("Symmetric", 0, 2, 10, 2, -1, 1))
sketch5.addConstraint(Sketcher.Constraint("Symmetric", 6, 2, 12, 2, -1, 1))
sketch5.addConstraint(Sketcher.Constraint("Symmetric", 4, 2, 14, 2, -1, 1))
sketch5.addConstraint(Sketcher.Constraint("Horizontal", 1, 2, 8, 2))
sketch5.addConstraint(Sketcher.Constraint("Vertical", 7, 2, 12, 2))
sketch5.addConstraint(Sketcher.Constraint("Equal", 15, 0))
sketch5.addConstraint(Sketcher.Constraint("Equal", 11, 4))
sketch5.addConstraint(Sketcher.Constraint("DistanceX", -1, 1, 1, 2, Q("7.5 mm")))
sketch5.addConstraint(Sketcher.Constraint("DistanceY", 4, 2, -1, 1, Q("7.5 mm")))
sketch5.addConstraint(Sketcher.Constraint("DistanceX", 5, 1, 5, 2, Q("1.651 mm")))
sketch5.addConstraint(Sketcher.Constraint("DistanceX", 1, 1, 1, 2, Q("5.152935 mm")))
pocket4 = body.newObject("PartDesign::Pocket", "Pocket003")
pocket4.Profile = sketch5
pocket4.Type = "ThroughAll"
doc.recompute()

fillet7 = body.newObject("PartDesign::Fillet", "Fillet006")
fillet7.Base = (pocket4, edges_at(pocket4, [
    (0.826, -2.935, 0),
    (-0.826, -2.935, 0),
    (0.826, -2.347, 0),
    (-0.826, -2.347, 0),
    (2.935, 0.826, 0),
    (2.935, -0.826, 0),
    (2.347, 0.826, 0),
    (2.347, -0.826, 0),
    (-2.935, -0.826, 0),
    (-2.935, 0.826, 0),
    (-2.347, -0.826, 0),
    (-2.347, 0.826, 0),
    (-0.826, 2.935, 0),
    (0.826, 2.935, 0),
    (-0.826, 2.347, 0),
    (0.826, 2.347, 0),
]))
fillet7.Radius = 0.2

doc.recompute()
